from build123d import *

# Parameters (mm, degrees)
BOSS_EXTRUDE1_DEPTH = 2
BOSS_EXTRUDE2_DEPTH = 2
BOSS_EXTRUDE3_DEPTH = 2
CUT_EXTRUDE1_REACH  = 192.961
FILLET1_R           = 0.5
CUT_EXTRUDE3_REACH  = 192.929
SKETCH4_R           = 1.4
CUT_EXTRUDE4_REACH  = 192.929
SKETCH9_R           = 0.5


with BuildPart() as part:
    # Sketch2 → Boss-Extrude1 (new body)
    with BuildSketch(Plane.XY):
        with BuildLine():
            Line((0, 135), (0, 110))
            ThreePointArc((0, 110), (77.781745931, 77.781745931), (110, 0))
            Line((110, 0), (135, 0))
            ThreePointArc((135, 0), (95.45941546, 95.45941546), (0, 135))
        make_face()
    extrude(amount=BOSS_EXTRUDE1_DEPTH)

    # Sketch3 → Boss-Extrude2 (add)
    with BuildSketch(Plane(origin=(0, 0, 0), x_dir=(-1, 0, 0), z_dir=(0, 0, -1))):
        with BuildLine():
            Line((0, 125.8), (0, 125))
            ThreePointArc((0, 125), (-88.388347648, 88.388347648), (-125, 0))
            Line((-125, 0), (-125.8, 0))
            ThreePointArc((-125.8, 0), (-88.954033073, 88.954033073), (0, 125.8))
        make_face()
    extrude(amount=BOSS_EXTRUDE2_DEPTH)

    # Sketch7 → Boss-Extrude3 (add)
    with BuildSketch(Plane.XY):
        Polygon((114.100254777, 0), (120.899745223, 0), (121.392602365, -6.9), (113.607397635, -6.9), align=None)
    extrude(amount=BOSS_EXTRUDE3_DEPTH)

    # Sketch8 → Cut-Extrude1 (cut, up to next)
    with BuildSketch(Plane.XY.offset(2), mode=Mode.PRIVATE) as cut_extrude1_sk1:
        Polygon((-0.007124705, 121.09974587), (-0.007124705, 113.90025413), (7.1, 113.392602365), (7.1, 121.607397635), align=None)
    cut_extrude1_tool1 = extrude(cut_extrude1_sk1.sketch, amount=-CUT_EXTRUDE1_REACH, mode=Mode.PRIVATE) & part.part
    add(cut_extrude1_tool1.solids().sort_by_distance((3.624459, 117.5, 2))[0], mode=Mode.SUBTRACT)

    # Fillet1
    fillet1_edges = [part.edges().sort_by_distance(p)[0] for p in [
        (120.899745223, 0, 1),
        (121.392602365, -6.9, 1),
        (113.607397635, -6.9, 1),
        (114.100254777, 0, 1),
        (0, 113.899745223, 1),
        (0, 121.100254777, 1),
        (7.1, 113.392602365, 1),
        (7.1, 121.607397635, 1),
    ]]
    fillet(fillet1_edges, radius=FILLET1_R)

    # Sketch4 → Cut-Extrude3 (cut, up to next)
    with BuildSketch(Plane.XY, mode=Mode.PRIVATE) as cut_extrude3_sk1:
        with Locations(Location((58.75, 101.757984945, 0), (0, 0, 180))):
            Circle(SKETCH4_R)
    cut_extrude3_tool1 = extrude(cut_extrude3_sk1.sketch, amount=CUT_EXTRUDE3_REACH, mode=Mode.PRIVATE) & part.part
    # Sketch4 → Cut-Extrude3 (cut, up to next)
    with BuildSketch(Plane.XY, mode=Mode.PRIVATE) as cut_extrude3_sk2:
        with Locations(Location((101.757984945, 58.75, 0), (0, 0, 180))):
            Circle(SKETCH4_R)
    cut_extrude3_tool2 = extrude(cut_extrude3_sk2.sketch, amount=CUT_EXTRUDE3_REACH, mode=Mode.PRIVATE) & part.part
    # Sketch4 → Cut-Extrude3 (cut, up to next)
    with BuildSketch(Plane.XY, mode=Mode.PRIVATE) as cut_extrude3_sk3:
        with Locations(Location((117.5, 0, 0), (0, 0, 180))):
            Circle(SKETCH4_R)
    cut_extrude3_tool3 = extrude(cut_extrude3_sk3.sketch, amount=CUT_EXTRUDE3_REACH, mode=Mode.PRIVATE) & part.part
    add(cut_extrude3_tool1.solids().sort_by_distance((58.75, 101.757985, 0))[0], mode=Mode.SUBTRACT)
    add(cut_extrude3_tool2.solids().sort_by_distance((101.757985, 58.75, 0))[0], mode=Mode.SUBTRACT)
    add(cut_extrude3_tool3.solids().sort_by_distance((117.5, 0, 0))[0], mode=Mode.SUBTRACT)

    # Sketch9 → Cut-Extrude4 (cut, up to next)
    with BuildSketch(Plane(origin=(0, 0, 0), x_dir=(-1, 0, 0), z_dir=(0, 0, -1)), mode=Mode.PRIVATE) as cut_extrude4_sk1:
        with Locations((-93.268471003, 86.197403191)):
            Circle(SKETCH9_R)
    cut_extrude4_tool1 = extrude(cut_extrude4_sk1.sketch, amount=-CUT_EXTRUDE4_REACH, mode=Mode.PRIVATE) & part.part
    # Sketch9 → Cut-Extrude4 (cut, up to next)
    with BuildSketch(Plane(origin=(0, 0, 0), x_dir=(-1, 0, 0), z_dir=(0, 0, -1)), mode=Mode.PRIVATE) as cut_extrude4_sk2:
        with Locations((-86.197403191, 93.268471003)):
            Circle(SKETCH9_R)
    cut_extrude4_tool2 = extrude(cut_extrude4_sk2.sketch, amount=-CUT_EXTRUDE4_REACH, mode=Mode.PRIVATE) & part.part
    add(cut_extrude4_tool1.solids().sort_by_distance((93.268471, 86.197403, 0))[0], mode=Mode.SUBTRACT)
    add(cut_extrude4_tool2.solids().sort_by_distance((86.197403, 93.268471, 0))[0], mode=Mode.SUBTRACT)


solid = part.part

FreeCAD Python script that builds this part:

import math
import FreeCAD as App
import Part
import Sketcher
Q = App.Units.Quantity


def edges_at(feature, points):
    """Names of the edges that pass closest to the given points."""
    edges = feature.Shape.Edges
    near = lambda p: min(range(len(edges)), key=lambda i: edges[i].distToShape(Part.Vertex(*p))[0])
    return sorted({f"Edge{near(p) + 1}" for p in points})


def add_polygon(sketch, points):
    """Adds a closed chain of lines whose ends are joined by coincident constraints."""
    first, n = sketch.GeometryCount, len(points)
    for a, b in zip(points, points[1:] + points[:1]):
        sketch.addGeometry(Part.LineSegment(App.Vector(*a, 0), App.Vector(*b, 0)), False)
    for i in range(n):
        sketch.addConstraint(Sketcher.Constraint("Coincident", first + i, 2, first + (i + 1) % n, 1))

doc = App.newDocument("Part")
body = doc.addObject("PartDesign::Body", "Body")

# Sketch on XY plane
sketch1 = doc.addObject("Sketcher::SketchObject", "Sketch")
body.addObject(sketch1)
sketch1.AttachmentSupport = (doc.XY_Plane, [""])
sketch1.MapMode = "FlatFace"
sketch1.addGeometry(Part.LineSegment(App.Vector(0, 135, 0), App.Vector(0, 110, 0)), False)
sketch1.addGeometry(Part.ArcOfCircle(Part.Circle(App.Vector(0, 0, 0), App.Vector(0, 0, 1), 110), math.radians(0), math.radians(90)), False)
sketch1.addGeometry(Part.LineSegment(App.Vector(110, 0, 0), App.Vector(135, 0, 0)), False)
sketch1.addGeometry(Part.ArcOfCircle(Part.Circle(App.Vector(0, 0, 0), App.Vector(0, 0, 1), 135), math.radians(0), math.radians(90)), False)
sketch1.addConstraint(Sketcher.Constraint("Coincident", 0, 2, 1, 2))
sketch1.addConstraint(Sketcher.Constraint("Coincident", 1, 1, 2, 1))
sketch1.addConstraint(Sketcher.Constraint("Coincident", 2, 2, 3, 1))
sketch1.addConstraint(Sketcher.Constraint("Coincident", 3, 2, 0, 1))
sketch1.addConstraint(Sketcher.Constraint("Vertical", 0))
sketch1.addConstraint(Sketcher.Constraint("Horizontal", 2))
sketch1.addConstraint(Sketcher.Constraint("Coincident", 1, 3, -1, 1))
sketch1.addConstraint(Sketcher.Constraint("Coincident", 3, 3, -1, 1))
sketch1.addConstraint(Sketcher.Constraint("PointOnObject", 0, 2, -2))
sketch1.addConstraint(Sketcher.Constraint("PointOnObject", 1, 1, -1))
sketch1.addConstraint(Sketcher.Constraint("Radius", 1, Q("110 mm")))
sketch1.addConstraint(Sketcher.Constraint("Radius", 3, Q("135 mm")))
pad1 = doc.addObject("PartDesign::Pad", "Pad")
body.addObject(pad1)
pad1.Profile = sketch1
pad1.Length = 2

# Sketch on XY plane
sketch2 = doc.addObject("Sketcher::SketchObject", "Sketch001")
body.addObject(sketch2)
sketch2.AttachmentSupport = (doc.XY_Plane, [""])
sketch2.MapMode = "FlatFace"
sketch2.addGeometry(Part.LineSegment(App.Vector(0, 125, 0), App.Vector(0, 125.8, 0)), False)
sketch2.addGeometry(Part.ArcOfCircle(Part.Circle(App.Vector(0, 0, 0), App.Vector(0, 0, 1), 125.8), math.radians(0), math.radians(90)), False)
sketch2.addGeometry(Part.LineSegment(App.Vector(125.8, 0, 0), App.Vector(125, 0, 0)), False)
sketch2.addGeometry(Part.ArcOfCircle(Part.Circle(App.Vector(0, 0, 0), App.Vector(0, 0, 1), 125), math.radians(0), math.radians(90)), False)
sketch2.addConstraint(Sketcher.Constraint("Coincident", 0, 2, 1, 2))
sketch2.addConstraint(Sketcher.Constraint("Coincident", 1, 1, 2, 1))
sketch2.addConstraint(Sketcher.Constraint("Coincident", 2, 2, 3, 1))
sketch2.addConstraint(Sketcher.Constraint("Coincident", 3, 2, 0, 1))
sketch2.addConstraint(Sketcher.Constraint("Vertical", 0))
sketch2.addConstraint(Sketcher.Constraint("Horizontal", 2))
sketch2.addConstraint(Sketcher.Constraint("Coincident", 1, 3, -1, 1))
sketch2.addConstraint(Sketcher.Constraint("Coincident", 3, 3, -1, 1))
sketch2.addConstraint(Sketcher.Constraint("PointOnObject", 0, 2, -2))
sketch2.addConstraint(Sketcher.Constraint("PointOnObject", 1, 1, -1))
sketch2.addConstraint(Sketcher.Constraint("Radius", 3, Q("125 mm")))
sketch2.addConstraint(Sketcher.Constraint("Radius", 1, Q("125.8 mm")))
pad2 = doc.addObject("PartDesign::Pad", "Pad001")
body.addObject(pad2)
pad2.Profile = sketch2
pad2.Length = 2
pad2.Reversed = True

# Sketch on XY plane
sketch3 = doc.addObject("Sketcher::SketchObject", "Sketch002")
body.addObject(sketch3)
sketch3.AttachmentSupport = (doc.XY_Plane, [""])
sketch3.MapMode = "FlatFace"
add_polygon(sketch3, [(121, 0), (114, 0), (114, -7), (121, -7)])  # lines 0-3
sketch3.addConstraint(Sketcher.Constraint("Horizontal", 0))
sketch3.addConstraint(Sketcher.Constraint("Horizontal", 2))
sketch3.addConstraint(Sketcher.Constraint("PointOnObject", 0, 2, -1))
sketch3.addConstraint(Sketcher.Constraint("Equal", 1, 3))
sketch3.addConstraint(Sketcher.Constraint("DistanceY", 1, 2, -1, 1, Q("6.9 mm")))
sketch3.addConstraint(Sketcher.Constraint("DistanceX", 0, 2, 0, 1, Q("6.79949 mm")))
sketch3.addConstraint(Sketcher.Constraint("Distance", 1, Q("6.91758 mm")))
sketch3.addConstraint(Sketcher.Constraint("DistanceX", -1, 1, 0, 2, Q("114.100255 mm")))
pad3 = doc.addObject("PartDesign::Pad", "Pad002")
body.addObject(pad3)
pad3.Profile = sketch3
pad3.Length = 2

# Sketch on XY plane
sketch4 = doc.addObject("Sketcher::SketchObject", "Sketch003")
body.addObject(sketch4)
sketch4.AttachmentSupport = (doc.XY_Plane, [""])
sketch4.MapMode = "FlatFace"
sketch4.AttachmentOffset = App.Placement(App.Vector(0, 0, 2), App.Rotation())
add_polygon(sketch4, [(0, 121), (0, 114), (7, 113), (7, 122)])  # lines 0-3
sketch4.addConstraint(Sketcher.Constraint("Vertical", 0))
sketch4.addConstraint(Sketcher.Constraint("Vertical", 2))
sketch4.addConstraint(Sketcher.Constraint("Equal", 1, 3))
sketch4.addConstraint(Sketcher.Constraint("DistanceX", -1, 1, 1, 2, Q("7.1 mm")))
sketch4.addConstraint(Sketcher.Constraint("DistanceY", 0, 2, 0, 1, Q("7.199492 mm")))
sketch4.addConstraint(Sketcher.Constraint("DistanceY", 2, 1, 2, 2, Q("8.214795 mm")))
sketch4.addConstraint(Sketcher.Constraint("Distance", 1, Q("7.125232 mm")))
sketch4.addConstraint(Sketcher.Constraint("DistanceY", -1, 1, 0, 2, Q("113.900254 mm")))
pocket1 = doc.addObject("PartDesign::Pocket", "Pocket")
body.addObject(pocket1)
pocket1.Profile = sketch4
pocket1.Type = "UpToFirst"
doc.recompute()

fillet = doc.addObject("PartDesign::Fillet", "Fillet")
body.addObject(fillet)
fillet.Base = (pocket1, edges_at(pocket1, [
    (120.9, 0, 1),
    (121.393, -6.9, 1),
    (113.607, -6.9, 1),
    (114.1, 0, 1),
    (0, 113.9, 1),
    (0, 121.1, 1),
    (7.1, 113.393, 1),
    (7.1, 121.607, 1),
]))
fillet.Radius = 0.5

# Sketch on XY plane
sketch5 = doc.addObject("Sketcher::SketchObject", "Sketch004")
body.addObject(sketch5)
sketch5.AttachmentSupport = (doc.XY_Plane, [""])
sketch5.MapMode = "FlatFace"
sketch5.addGeometry(Part.Circle(App.Vector(58.8, 101.8, 0), App.Vector(0, 0, 1), 1.4), False)
sketch5.addConstraint(Sketcher.Constraint("Diameter", 0, Q("2.8 mm")))
sketch5.addConstraint(Sketcher.Constraint("DistanceX", -1, 1, 0, 3, Q("58.75 mm")))
sketch5.addConstraint(Sketcher.Constraint("DistanceY", -1, 1, 0, 3, Q("101.757985 mm")))
pocket2 = doc.addObject("PartDesign::Pocket", "Pocket001")
body.addObject(pocket2)
pocket2.Profile = sketch5
pocket2.Type = "UpToFirst"
pocket2.Reversed = True

# Sketch on XY plane
sketch6 = doc.addObject("Sketcher::SketchObject", "Sketch005")
body.addObject(sketch6)
sketch6.AttachmentSupport = (doc.XY_Plane, [""])
sketch6.MapMode = "FlatFace"
sketch6.addGeometry(Part.Circle(App.Vector(101.8, 58.8, 0), App.Vector(0, 0, 1), 1.4), False)
sketch6.addConstraint(Sketcher.Constraint("Diameter", 0, Q("2.8 mm")))
sketch6.addConstraint(Sketcher.Constraint("DistanceY", -1, 1, 0, 3, Q("58.75 mm")))
sketch6.addConstraint(Sketcher.Constraint("DistanceX", -1, 1, 0, 3, Q("101.757985 mm")))
pocket3 = doc.addObject("PartDesign::Pocket", "Pocket002")
body.addObject(pocket3)
pocket3.Profile = sketch6
pocket3.Type = "UpToFirst"
pocket3.Reversed = True

# Sketch on XY plane
sketch7 = doc.addObject("Sketcher::SketchObject", "Sketch006")
body.addObject(sketch7)
sketch7.AttachmentSupport = (doc.XY_Plane, [""])
sketch7.MapMode = "FlatFace"
sketch7.addGeometry(Part.Circle(App.Vector(117.5, 0, 0), App.Vector(0, 0, 1), 1.4), False)
sketch7.addConstraint(Sketcher.Constraint("PointOnObject", 0, 3, -1))
sketch7.addConstraint(Sketcher.Constraint("Diameter", 0, Q("2.8 mm")))
sketch7.addConstraint(Sketcher.Constraint("DistanceX", -1, 1, 0, 3, Q("117.5 mm")))
pocket4 = doc.addObject("PartDesign::Pocket", "Pocket003")
body.addObject(pocket4)
pocket4.Profile = sketch7
pocket4.Type = "UpToFirst"
pocket4.Reversed = True

# Sketch on XY plane
sketch8 = doc.addObject("Sketcher::SketchObject", "Sketch007")
body.addObject(sketch8)
sketch8.AttachmentSupport = (doc.XY_Plane, [""])
sketch8.MapMode = "FlatFace"
sketch8.addGeometry(Part.Circle(App.Vector(93.3, 86.2, 0), App.Vector(0, 0, 1), 0.5), False)
sketch8.addConstraint(Sketcher.Constraint("Diameter", 0, Q("1 mm")))
sketch8.addConstraint(Sketcher.Constraint("DistanceX", -1, 1, 0, 3, Q("93.268471 mm")))
sketch8.addConstraint(Sketcher.Constraint("DistanceY", -1, 1, 0, 3, Q("86.197403 mm")))
pocket5 = doc.addObject("PartDesign::Pocket", "Pocket004")
body.addObject(pocket5)
pocket5.Profile = sketch8
pocket5.Type = "UpToFirst"
pocket5.Reversed = True

# Sketch on XY plane
sketch9 = doc.addObject("Sketcher::SketchObject", "Sketch008")
body.addObject(sketch9)
sketch9.AttachmentSupport = (doc.XY_Plane, [""])
sketch9.MapMode = "FlatFace"
sketch9.addGeometry(Part.Circle(App.Vector(86.2, 93.3, 0), App.Vector(0, 0, 1), 0.5), False)
sketch9.addConstraint(Sketcher.Constraint("Diameter", 0, Q("1 mm")))
sketch9.addConstraint(Sketcher.Constraint("DistanceY", -1, 1, 0, 3, Q("93.268471 mm")))
sketch9.addConstraint(Sketcher.Constraint("DistanceX", -1, 1, 0, 3, Q("86.197403 mm")))
pocket6 = doc.addObject("PartDesign::Pocket", "Pocket005")
body.addObject(pocket6)
pocket6.Profile = sketch9
pocket6.Type = "UpToFirst"
pocket6.Reversed = True

doc.recompute()
